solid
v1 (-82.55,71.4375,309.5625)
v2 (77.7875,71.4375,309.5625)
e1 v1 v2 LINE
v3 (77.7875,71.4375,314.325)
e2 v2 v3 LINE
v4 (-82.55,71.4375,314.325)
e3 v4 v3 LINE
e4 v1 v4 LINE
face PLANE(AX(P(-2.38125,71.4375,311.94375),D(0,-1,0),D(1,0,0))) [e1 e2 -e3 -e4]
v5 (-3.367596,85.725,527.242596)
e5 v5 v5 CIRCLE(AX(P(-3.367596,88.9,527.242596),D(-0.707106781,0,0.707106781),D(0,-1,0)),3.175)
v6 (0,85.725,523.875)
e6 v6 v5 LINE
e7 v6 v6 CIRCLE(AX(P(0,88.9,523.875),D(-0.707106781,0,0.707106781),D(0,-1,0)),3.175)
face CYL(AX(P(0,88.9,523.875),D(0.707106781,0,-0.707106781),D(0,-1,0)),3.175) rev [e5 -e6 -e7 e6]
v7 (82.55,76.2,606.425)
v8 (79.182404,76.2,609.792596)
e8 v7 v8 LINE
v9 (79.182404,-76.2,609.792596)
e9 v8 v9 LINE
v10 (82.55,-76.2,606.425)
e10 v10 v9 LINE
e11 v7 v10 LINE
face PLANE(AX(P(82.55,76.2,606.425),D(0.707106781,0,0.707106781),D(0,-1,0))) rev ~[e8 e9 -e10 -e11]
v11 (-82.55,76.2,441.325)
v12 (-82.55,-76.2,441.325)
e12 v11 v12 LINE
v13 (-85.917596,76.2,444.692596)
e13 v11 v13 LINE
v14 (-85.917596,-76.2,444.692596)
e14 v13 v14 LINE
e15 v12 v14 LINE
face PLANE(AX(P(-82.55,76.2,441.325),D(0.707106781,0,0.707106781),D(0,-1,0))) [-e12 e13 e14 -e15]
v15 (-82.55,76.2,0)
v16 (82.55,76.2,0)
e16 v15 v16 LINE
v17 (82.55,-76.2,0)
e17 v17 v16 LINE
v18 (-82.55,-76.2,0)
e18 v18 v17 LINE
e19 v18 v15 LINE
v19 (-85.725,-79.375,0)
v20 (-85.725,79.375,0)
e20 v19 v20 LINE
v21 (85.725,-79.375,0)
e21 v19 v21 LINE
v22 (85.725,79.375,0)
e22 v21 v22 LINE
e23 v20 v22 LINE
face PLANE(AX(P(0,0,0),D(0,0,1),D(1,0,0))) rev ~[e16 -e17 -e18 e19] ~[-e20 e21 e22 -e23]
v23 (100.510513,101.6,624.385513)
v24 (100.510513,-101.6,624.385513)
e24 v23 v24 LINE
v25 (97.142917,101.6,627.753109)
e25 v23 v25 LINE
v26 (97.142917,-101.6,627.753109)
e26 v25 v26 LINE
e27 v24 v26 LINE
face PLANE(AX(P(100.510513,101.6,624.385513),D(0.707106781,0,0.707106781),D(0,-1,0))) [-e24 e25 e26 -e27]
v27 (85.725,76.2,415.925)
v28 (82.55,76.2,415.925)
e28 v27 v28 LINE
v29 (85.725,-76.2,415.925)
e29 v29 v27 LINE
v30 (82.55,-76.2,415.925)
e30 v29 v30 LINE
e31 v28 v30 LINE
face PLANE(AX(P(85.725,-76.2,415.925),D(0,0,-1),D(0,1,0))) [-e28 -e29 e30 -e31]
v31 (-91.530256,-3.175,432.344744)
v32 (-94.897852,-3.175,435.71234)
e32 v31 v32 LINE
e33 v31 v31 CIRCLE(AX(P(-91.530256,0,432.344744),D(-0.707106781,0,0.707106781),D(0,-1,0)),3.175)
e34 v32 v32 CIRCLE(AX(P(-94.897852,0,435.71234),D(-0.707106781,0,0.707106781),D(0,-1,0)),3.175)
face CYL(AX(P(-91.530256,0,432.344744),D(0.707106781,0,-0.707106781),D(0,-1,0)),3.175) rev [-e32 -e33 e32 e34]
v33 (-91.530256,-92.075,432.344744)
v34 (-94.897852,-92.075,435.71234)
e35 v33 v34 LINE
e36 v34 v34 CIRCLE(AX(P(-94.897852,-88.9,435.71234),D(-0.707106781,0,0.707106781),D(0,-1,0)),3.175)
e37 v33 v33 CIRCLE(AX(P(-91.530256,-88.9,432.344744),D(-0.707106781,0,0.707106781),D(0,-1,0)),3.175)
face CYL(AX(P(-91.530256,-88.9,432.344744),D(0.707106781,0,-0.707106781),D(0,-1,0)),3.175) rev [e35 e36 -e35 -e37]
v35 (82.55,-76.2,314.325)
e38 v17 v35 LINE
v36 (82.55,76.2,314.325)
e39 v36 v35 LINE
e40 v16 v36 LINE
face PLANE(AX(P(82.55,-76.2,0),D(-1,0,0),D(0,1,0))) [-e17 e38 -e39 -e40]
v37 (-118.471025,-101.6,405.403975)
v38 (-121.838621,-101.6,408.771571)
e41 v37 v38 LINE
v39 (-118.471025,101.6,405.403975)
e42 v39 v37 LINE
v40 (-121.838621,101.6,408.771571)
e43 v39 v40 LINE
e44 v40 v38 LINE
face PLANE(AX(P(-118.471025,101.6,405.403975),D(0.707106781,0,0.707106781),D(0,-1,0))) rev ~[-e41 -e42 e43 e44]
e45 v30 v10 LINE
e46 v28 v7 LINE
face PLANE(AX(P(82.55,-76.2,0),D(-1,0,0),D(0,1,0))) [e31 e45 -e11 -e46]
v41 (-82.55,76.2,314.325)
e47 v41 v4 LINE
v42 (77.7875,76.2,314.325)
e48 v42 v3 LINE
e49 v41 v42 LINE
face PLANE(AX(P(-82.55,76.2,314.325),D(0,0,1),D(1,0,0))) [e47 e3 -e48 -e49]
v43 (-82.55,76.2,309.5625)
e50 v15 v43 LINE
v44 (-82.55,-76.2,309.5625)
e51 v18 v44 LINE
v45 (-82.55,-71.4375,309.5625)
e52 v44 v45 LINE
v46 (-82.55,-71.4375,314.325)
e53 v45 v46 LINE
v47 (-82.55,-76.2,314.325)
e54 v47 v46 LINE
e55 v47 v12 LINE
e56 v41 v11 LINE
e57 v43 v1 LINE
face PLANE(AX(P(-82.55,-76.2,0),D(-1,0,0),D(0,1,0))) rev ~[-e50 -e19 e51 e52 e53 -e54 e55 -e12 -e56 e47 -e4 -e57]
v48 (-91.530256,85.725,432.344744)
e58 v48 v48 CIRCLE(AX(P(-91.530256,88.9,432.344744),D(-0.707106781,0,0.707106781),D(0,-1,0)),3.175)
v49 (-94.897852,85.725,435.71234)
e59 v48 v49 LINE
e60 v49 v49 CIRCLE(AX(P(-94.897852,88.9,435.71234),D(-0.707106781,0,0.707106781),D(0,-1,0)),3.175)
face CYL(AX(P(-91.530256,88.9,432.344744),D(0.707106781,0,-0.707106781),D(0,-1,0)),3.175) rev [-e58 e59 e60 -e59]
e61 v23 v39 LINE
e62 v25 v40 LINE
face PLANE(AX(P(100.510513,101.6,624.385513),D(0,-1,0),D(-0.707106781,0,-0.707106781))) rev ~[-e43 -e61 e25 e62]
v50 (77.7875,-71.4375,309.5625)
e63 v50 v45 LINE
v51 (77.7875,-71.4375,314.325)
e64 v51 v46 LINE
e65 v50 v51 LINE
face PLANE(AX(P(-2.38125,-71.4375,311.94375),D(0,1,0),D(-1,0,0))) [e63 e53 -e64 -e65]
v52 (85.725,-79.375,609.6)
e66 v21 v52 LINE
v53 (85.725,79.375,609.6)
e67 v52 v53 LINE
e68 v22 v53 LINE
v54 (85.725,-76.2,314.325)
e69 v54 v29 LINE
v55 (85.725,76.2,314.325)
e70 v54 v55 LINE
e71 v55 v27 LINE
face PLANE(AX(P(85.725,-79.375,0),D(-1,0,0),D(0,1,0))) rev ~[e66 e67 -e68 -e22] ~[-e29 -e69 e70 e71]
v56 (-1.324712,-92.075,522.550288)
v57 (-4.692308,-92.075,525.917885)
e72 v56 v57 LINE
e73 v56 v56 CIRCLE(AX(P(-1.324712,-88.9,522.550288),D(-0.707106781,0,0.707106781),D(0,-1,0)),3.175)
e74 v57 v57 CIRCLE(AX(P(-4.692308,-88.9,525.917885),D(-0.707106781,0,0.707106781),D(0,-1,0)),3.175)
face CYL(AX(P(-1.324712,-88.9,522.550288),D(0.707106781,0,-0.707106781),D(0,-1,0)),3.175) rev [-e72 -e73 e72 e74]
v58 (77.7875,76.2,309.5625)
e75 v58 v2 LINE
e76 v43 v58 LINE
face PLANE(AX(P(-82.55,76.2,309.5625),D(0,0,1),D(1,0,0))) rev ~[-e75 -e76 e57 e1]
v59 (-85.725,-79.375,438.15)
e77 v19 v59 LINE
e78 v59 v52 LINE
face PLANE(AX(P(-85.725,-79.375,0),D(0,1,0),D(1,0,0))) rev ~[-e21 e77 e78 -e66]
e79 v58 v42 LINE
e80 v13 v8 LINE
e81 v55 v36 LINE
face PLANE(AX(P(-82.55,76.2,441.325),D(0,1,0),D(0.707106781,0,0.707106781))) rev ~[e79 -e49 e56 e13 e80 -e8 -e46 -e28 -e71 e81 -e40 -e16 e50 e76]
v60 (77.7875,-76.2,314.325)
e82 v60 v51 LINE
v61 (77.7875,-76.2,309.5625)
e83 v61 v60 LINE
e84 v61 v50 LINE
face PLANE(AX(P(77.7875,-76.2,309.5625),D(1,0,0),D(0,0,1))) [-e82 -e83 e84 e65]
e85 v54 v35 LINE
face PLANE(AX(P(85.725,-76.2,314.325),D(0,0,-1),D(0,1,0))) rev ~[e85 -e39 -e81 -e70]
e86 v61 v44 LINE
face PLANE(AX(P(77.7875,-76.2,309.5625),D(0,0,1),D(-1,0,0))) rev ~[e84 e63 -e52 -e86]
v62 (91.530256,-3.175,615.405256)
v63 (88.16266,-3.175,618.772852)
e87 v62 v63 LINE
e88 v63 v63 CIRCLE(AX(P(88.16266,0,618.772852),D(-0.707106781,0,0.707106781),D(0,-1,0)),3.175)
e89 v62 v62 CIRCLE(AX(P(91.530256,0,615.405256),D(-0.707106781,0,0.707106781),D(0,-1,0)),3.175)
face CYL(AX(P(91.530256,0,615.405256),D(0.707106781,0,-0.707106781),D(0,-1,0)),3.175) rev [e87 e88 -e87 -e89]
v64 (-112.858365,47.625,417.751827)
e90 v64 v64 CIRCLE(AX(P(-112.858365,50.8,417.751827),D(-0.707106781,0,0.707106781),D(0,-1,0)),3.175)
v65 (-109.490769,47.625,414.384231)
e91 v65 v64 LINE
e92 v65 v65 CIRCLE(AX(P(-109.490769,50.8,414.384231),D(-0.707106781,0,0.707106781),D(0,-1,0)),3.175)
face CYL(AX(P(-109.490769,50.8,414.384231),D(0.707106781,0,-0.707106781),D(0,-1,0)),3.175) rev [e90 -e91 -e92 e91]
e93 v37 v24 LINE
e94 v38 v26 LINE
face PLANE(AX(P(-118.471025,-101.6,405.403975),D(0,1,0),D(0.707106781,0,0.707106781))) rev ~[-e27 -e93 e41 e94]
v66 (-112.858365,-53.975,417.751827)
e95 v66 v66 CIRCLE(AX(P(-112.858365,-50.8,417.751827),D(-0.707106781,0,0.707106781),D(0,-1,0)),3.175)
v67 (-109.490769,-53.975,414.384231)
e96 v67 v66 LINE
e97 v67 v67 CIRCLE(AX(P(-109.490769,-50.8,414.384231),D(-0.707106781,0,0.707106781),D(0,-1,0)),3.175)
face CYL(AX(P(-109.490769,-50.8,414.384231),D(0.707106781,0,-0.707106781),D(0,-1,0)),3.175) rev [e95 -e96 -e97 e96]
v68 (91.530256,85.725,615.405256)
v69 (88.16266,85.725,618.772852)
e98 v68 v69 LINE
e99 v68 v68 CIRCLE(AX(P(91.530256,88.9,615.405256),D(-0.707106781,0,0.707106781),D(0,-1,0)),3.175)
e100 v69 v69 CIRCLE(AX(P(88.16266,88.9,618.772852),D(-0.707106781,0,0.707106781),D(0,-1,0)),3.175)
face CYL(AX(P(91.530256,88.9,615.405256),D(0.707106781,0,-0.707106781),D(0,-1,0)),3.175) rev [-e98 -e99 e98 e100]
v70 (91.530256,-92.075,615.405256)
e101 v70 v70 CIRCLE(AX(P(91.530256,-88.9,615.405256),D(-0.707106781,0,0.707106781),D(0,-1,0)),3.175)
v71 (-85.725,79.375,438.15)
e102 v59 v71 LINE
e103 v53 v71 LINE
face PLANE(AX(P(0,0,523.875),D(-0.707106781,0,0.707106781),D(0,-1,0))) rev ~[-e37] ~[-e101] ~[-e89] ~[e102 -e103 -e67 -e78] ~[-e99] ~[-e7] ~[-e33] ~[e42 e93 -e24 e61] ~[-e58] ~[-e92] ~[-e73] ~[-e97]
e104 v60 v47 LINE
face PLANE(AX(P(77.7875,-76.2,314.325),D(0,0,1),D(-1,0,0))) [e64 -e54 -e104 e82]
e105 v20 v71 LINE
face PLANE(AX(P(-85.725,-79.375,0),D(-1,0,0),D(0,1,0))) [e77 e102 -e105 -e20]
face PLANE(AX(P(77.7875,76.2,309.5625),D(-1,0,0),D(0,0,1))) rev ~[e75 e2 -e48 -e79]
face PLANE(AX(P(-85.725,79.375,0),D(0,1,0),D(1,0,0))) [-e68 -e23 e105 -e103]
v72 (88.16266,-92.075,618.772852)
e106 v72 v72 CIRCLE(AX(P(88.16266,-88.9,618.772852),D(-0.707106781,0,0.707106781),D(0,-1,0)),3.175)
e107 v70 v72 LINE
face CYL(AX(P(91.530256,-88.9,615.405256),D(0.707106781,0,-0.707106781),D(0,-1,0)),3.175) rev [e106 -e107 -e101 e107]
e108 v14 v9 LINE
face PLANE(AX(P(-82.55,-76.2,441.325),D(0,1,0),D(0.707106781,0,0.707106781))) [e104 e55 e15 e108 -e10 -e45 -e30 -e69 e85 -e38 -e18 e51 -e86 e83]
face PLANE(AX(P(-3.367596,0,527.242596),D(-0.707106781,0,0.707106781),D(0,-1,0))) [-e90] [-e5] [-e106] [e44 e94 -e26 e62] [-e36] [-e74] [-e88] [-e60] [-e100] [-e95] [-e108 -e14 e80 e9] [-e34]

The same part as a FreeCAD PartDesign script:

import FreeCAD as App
import Part
import Sketcher
from FreeCAD import Vector
Q = App.Units.Quantity


def add_polygon(sketch, points):
    """Adds a closed chain of lines whose ends are joined by coincident constraints."""
    first, n = sketch.GeometryCount, len(points)
    for a, b in zip(points, points[1:] + points[:1]):
        sketch.addGeometry(Part.LineSegment(App.Vector(*a, 0), App.Vector(*b, 0)), False)
    for i in range(n):
        sketch.addConstraint(Sketcher.Constraint("Coincident", first + i, 2, first + (i + 1) % n, 1))

doc = App.newDocument("Part")
params = doc.addObject("Spreadsheet::Sheet", "Params")
for row, (alias, value) in enumerate([
    ("sketch1_height", "6 in"),
    ("sketch1_width", "6.5 in"),
    ("sketch1_width2", "6.75 in"),
    ("sketch1_height2", "6.25 in"),
    ("pad1_length", "24 in"),
    ("sketch2_width", "6.75 in"),
    ("sketch3_diameter", "0.25 in"),
    ("sketch3_width", "8 in"),
    ("sketch3_width2", "6 in"),
    ("pad2_length", "0.1875 in"),
    ("sketch4_width", "6 in"),
    ("sketch4_height", "4 in"),
    ("pocket2_length", "1 in"),
    ("sketch5_width", "6.3125 in"),
    ("sketch5_height", "0.1875 in"),
    ("pad3_length", "0.1875 in"),
    ("sketch6_width", "6.3125 in"),
    ("sketch6_height", "0.1875 in"),
    ("pad4_length", "0.1875 in"),
], start=1):
    params.set(f"A{row}", alias)
    params.set(f"B{row}", "=" + value)
    params.setAlias(f"B{row}", alias)

body = doc.addObject("PartDesign::Body", "Body")

# Sketch on XY plane
sketch1 = doc.addObject("Sketcher::SketchObject", "Sketch")
body.addObject(sketch1)
sketch1.AttachmentSupport = (doc.XY_Plane, [""])
sketch1.MapMode = "FlatFace"
add_polygon(sketch1, [(-86, 79), (-86, -79), (86, -79), (86, 79)])  # lines 0-3
add_polygon(sketch1, [(83, -76), (-83, -76), (-83, 76), (83, 76)])  # lines 4-7
sketch1.addConstraint([
    Sketcher.Constraint("Vertical", 0),
    Sketcher.Constraint("Horizontal", 1),
    Sketcher.Constraint("Vertical", 2),
    Sketcher.Constraint("Horizontal", 3),
    Sketcher.Constraint("Horizontal", 4),
    Sketcher.Constraint("Vertical", 5),
    Sketcher.Constraint("Horizontal", 6),
    Sketcher.Constraint("Vertical", 7),
    Sketcher.Constraint("Symmetric", 0, 2, 2, 2, -1, 1),
    Sketcher.Constraint("Symmetric", 4, 2, 6, 2, -1, 1),
    Sketcher.Constraint("DistanceY", 5, 1, 5, 2, Q("6 in")),
    Sketcher.Constraint("DistanceX", 4, 2, 4, 1, Q("6.5 in")),
    Sketcher.Constraint("DistanceX", 1, 1, 1, 2, Q("6.75 in")),
    Sketcher.Constraint("DistanceY", 0, 2, 0, 1, Q("6.25 in")),
])
sketch1.setExpression("Constraints[18]", "Params.sketch1_height")
sketch1.setExpression("Constraints[19]", "Params.sketch1_width")
sketch1.setExpression("Constraints[20]", "Params.sketch1_width2")
sketch1.setExpression("Constraints[21]", "Params.sketch1_height2")
pad1 = doc.addObject("PartDesign::Pad", "Pad")
body.addObject(pad1)
pad1.Profile = sketch1
pad1.setExpression("Length", "Params.pad1_length")

# Sketch on XZ plane
sketch2 = doc.addObject("Sketcher::SketchObject", "Sketch001")
body.addObject(sketch2)
sketch2.AttachmentSupport = (doc.XZ_Plane, [""])
sketch2.MapMode = "FlatFace"
sketch2.AttachmentOffset = App.Placement(Vector(0, 0, 3.125 * 25.4), App.Rotation())
add_polygon(sketch2, [(-86, 438), (86, 610), (-86, 610)])  # lines 0-2
sketch2.addConstraint([
    Sketcher.Constraint("Horizontal", 1),
    Sketcher.Constraint("Vertical", 2),
    Sketcher.Constraint("Equal", 1, 2),
    Sketcher.Constraint("DistanceY", -1, 1, 0, 2, Q("24 in")),
    Sketcher.Constraint("DistanceX", 1, 2, 1, 1, Q("6.75 in")),
    Sketcher.Constraint("DistanceX", -1, 1, 0, 2, Q("3.375 in")),
])
sketch2.setExpression("Constraints[7]", "Params.sketch2_width")
pocket1 = doc.addObject("PartDesign::Pocket", "Pocket")
body.addObject(pocket1)
pocket1.Profile = sketch2
pocket1.Type = "ThroughAll"

# Sketch on an angled plane
sketch3 = doc.addObject("Sketcher::SketchObject", "Sketch002")
body.addObject(sketch3)
sketch3.Placement = App.Placement(Vector(-261.9375, 0, 261.9375), App.Rotation(Vector(0, -1, 0), Vector(0.707106781, 0, 0.707106781), Vector(-0.707106781, 0, 0.707106781), "ZXY"))
add_polygon(sketch3, [(-101.6, 512.6), (-101.6, 202.9), (101.6, 202.9), (101.6, 512.6)])  # lines 0-3
sketch3.addGeometry(Part.Circle(Vector(-88.9, 241, 0), Vector(0, 0, 1), 3.2), False)  # 4
sketch3.addGeometry(Part.Circle(Vector(-50.8, 215.6, 0), Vector(0, 0, 1), 3.2), False)  # 5
sketch3.addGeometry(Part.Circle(Vector(0, 241, 0), Vector(0, 0, 1), 3.2), False)  # 6
sketch3.addGeometry(Part.Circle(Vector(50.8, 215.6, 0), Vector(0, 0, 1), 3.2), False)  # 7
sketch3.addGeometry(Part.Circle(Vector(88.9, 241, 0), Vector(0, 0, 1), 3.2), False)  # 8
sketch3.addGeometry(Part.Circle(Vector(-88.9, 370.4, 0), Vector(0, 0, 1), 3.2), False)  # 9
sketch3.addGeometry(Part.Circle(Vector(-88.9, 499.9, 0), Vector(0, 0, 1), 3.2), False)  # 10
add_polygon(sketch3, [(76.2, 253.7), (-76.2, 253.7), (-76.2, 487.2), (76.2, 487.2)])  # lines 11-14
sketch3.addGeometry(Part.Circle(Vector(88.9, 368.6, 0), Vector(0, 0, 1), 3.2), False)  # 15
sketch3.addGeometry(Part.Circle(Vector(0, 499.9, 0), Vector(0, 0, 1), 3.2), False)  # 16
sketch3.addGeometry(Part.Circle(Vector(88.9, 499.9, 0), Vector(0, 0, 1), 3.2), False)  # 17
sketch3.addConstraint([
    Sketcher.Constraint("Vertical", 0),
    Sketcher.Constraint("Horizontal", 1),
    Sketcher.Constraint("Vertical", 2),
    Sketcher.Constraint("Horizontal", 3),
    Sketcher.Constraint("Horizontal", 11),
    Sketcher.Constraint("Vertical", 12),
    Sketcher.Constraint("Horizontal", 13),
    Sketcher.Constraint("Vertical", 14),
    Sketcher.Constraint("Equal", 4, 5),
    Sketcher.Constraint("Equal", 5, 6),
    Sketcher.Constraint("Equal", 6, 7),
    Sketcher.Constraint("Equal", 7, 8),
    Sketcher.Constraint("Equal", 8, 9),
    Sketcher.Constraint("Equal", 9, 10),
    Sketcher.Constraint("Equal", 10, 15),
    Sketcher.Constraint("Equal", 15, 16),
    Sketcher.Constraint("Equal", 16, 17),
    Sketcher.Constraint("Symmetric", 5, 3, 7, 3, -2),
    Sketcher.Constraint("Symmetric", 4, 3, 8, 3, -2),
    Sketcher.Constraint("Symmetric", 10, 3, 17, 3, -2),
    Sketcher.Constraint("PointOnObject", 6, 3, -2),
    Sketcher.Constraint("PointOnObject", 16, 3, -2),
    Sketcher.Constraint("Horizontal", 4, 3, 6, 3),
    Sketcher.Constraint("Horizontal", 10, 3, 16, 3),
    Sketcher.Constraint("Vertical", 4, 3, 9, 3),
    Sketcher.Constraint("Vertical", 9, 3, 10, 3),
    Sketcher.Constraint("Vertical", 8, 3, 15, 3),
    Sketcher.Constraint("Diameter", 4, Q("0.25 in")),
    Sketcher.Constraint("DistanceX", 1, 1, 1, 2, Q("8 in")),
    Sketcher.Constraint("DistanceX", 11, 2, 11, 1, Q("6 in")),
    Sketcher.Constraint("DistanceX", 5, 3, -1, 1, Q("2 in")),
    Sketcher.Constraint("DistanceX", 0, 2, -1, 1, Q("4 in")),
    Sketcher.Constraint("DistanceX", 11, 2, -1, 1, Q("3 in")),
    Sketcher.Constraint("DistanceY", 5, 3, 4, 3, Q("1 in")),
    Sketcher.Constraint("DistanceX", 4, 3, 8, 3, Q("7 in")),
    Sketcher.Constraint("DistanceY", 0, 2, 11, 2, Q("2 in")),
    Sketcher.Constraint("DistanceY", 12, 2, 3, 2, Q("1 in")),
    Sketcher.Constraint("DistanceY", 0, 2, 4, 3, Q("1.5 in")),
    Sketcher.Constraint("DistanceY", 17, 3, 2, 2, Q("0.5 in")),
    Sketcher.Constraint("DistanceY", 0, 2, 0, 1, Q("309.68666 mm")),
    Sketcher.Constraint("DistanceY", -1, 1, 15, 3, Q("368.56214 mm")),
    Sketcher.Constraint("DistanceY", 4, 3, 9, 3, Q("129.44333 mm")),
    Sketcher.Constraint("DistanceY", -1, 1, 4, 3, Q("240.992235 mm")),
])
sketch3.setExpression("Constraints[35]", "Params.sketch3_diameter")
sketch3.setExpression("Constraints[36]", "Params.sketch3_width")
sketch3.setExpression("Constraints[37]", "Params.sketch3_width2")
pad2 = doc.addObject("PartDesign::Pad", "Pad001")
body.addObject(pad2)
pad2.Profile = sketch3
pad2.setExpression("Length", "Params.pad2_length")

# Sketch on YZ plane
sketch4 = doc.addObject("Sketcher::SketchObject", "Sketch003")
body.addObject(sketch4)
sketch4.AttachmentSupport = (doc.YZ_Plane, [""])
sketch4.MapMode = "FlatFace"
sketch4.AttachmentOffset = App.Placement(Vector(0, 0, 3.375 * 25.4), App.Rotation())
add_polygon(sketch4, [(-76, 416), (-76, 314), (76, 314), (76, 416)])  # lines 0-3
sketch4.addConstraint([
    Sketcher.Constraint("Vertical", 0),
    Sketcher.Constraint("Horizontal", 1),
    Sketcher.Constraint("Vertical", 2),
    Sketcher.Constraint("Horizontal", 3),
    Sketcher.Constraint("DistanceX", 1, 1, 1, 2, Q("6 in")),
    Sketcher.Constraint("DistanceY", 0, 2, 0, 1, Q("4 in")),
    Sketcher.Constraint("DistanceX", 0, 2, -1, 1, Q("3 in")),
    Sketcher.Constraint("DistanceY", -1, 1, 0, 2, Q("12.375 in")),
])
sketch4.setExpression("Constraints[8]", "Params.sketch4_width")
sketch4.setExpression("Constraints[9]", "Params.sketch4_height")
pocket2 = doc.addObject("PartDesign::Pocket", "Pocket001")
body.addObject(pocket2)
pocket2.Profile = sketch4
pocket2.setExpression("Length", "Params.pocket2_length")

# Sketch on XZ plane
sketch5 = doc.addObject("Sketcher::SketchObject", "Sketch004")
body.addObject(sketch5)
sketch5.AttachmentSupport = (doc.XZ_Plane, [""])
sketch5.MapMode = "FlatFace"
sketch5.AttachmentOffset = App.Placement(Vector(0, 0, 3 * 25.4), App.Rotation())
add_polygon(sketch5, [(77.8, 314.3), (77.8, 309.6), (-82.5, 309.6), (-82.5, 314.3)])  # lines 0-3
sketch5.addConstraint([
    Sketcher.Constraint("Vertical", 0),
    Sketcher.Constraint("Horizontal", 1),
    Sketcher.Constraint("Vertical", 2),
    Sketcher.Constraint("Horizontal", 3),
    Sketcher.Constraint("DistanceX", 1, 2, 1, 1, Q("6.3125 in")),
    Sketcher.Constraint("DistanceY", 0, 2, 0, 1, Q("0.1875 in")),
    Sketcher.Constraint("DistanceX", 1, 2, -1, 1, Q("3.25 in")),
    Sketcher.Constraint("DistanceY", -1, 1, 0, 2, Q("12.1875 in")),
])
sketch5.setExpression("Constraints[8]", "Params.sketch5_width")
sketch5.setExpression("Constraints[9]", "Params.sketch5_height")
pad3 = doc.addObject("PartDesign::Pad", "Pad002")
body.addObject(pad3)
pad3.Profile = sketch5
pad3.setExpression("Length", "Params.pad3_length")
pad3.Reversed = True

# Sketch on XZ plane
sketch6 = doc.addObject("Sketcher::SketchObject", "Sketch005")
body.addObject(sketch6)
sketch6.AttachmentSupport = (doc.XZ_Plane, [""])
sketch6.MapMode = "FlatFace"
sketch6.AttachmentOffset = App.Placement(Vector(0, 0, -3 * 25.4), App.Rotation())
add_polygon(sketch6, [(-82.5, 314.3), (-82.5, 309.6), (77.8, 309.6), (77.8, 314.3)])  # lines 0-3
sketch6.addConstraint([
    Sketcher.Constraint("Vertical", 0),
    Sketcher.Constraint("Horizontal", 1),
    Sketcher.Constraint("Vertical", 2),
    Sketcher.Constraint("Horizontal", 3),
    Sketcher.Constraint("DistanceX", 1, 1, 1, 2, Q("6.3125 in")),
    Sketcher.Constraint("DistanceY", 0, 2, 0, 1, Q("0.1875 in")),
    Sketcher.Constraint("DistanceX", 0, 2, -1, 1, Q("3.25 in")),
    Sketcher.Constraint("DistanceY", -1, 1, 0, 2, Q("12.1875 in")),
])
sketch6.setExpression("Constraints[8]", "Params.sketch6_width")
sketch6.setExpression("Constraints[9]", "Params.sketch6_height")
pad4 = doc.addObject("PartDesign::Pad", "Pad003")
body.addObject(pad4)
pad4.Profile = sketch6
pad4.setExpression("Length", "Params.pad4_length")

doc.recompute()
